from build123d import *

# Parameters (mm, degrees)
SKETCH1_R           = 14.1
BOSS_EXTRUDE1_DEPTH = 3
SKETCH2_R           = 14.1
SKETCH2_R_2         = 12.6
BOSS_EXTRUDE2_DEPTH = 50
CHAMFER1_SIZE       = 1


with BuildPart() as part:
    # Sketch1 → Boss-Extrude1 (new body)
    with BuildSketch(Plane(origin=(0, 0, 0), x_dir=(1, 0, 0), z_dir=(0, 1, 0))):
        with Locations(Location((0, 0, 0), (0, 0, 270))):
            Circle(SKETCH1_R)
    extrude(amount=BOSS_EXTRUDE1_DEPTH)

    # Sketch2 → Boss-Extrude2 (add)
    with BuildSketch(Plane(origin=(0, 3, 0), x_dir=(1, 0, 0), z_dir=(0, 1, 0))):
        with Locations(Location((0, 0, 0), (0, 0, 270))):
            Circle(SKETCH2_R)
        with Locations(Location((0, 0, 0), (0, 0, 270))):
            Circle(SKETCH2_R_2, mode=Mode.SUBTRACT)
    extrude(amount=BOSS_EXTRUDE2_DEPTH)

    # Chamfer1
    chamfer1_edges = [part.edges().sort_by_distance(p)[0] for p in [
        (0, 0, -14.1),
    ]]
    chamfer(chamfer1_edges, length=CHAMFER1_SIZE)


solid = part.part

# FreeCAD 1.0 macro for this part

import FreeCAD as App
import Part
import Sketcher


def edges_at(feature, points):
    """Names of the edges that pass closest to the given points."""
    edges = feature.Shape.Edges
    near = lambda p: min(range(len(edges)), key=lambda i: edges[i].distToShape(Part.Vertex(*p))[0])
    return sorted({f"Edge{near(p) + 1}" for p in points})

doc = App.newDocument("Part")
body = doc.addObject("PartDesign::Body", "Body")

# Sketch on XZ plane
sketch1 = doc.addObject("Sketcher::SketchObject", "Sketch")
body.addObject(sketch1)
sketch1.AttachmentSupport = (doc.XZ_Plane, [""])
sketch1.MapMode = "FlatFace"
sketch1.addGeometry(Part.Circle(App.Vector(0, 0, 0), App.Vector(0, 0, 1), 14), False)
sketch1.addConstraint([
    Sketcher.Constraint("Coincident", 0, 3, -1, 1),
    Sketcher.Constraint("Diameter", 0, 28.2),
])
pad1 = doc.addObject("PartDesign::Pad", "Pad")
body.addObject(pad1)
pad1.Profile = sketch1
pad1.Length = 3
pad1.Reversed = True

# Sketch on XZ plane
sketch2 = doc.addObject("Sketcher::SketchObject", "Sketch001")
body.addObject(sketch2)
sketch2.AttachmentSupport = (doc.XZ_Plane, [""])
sketch2.MapMode = "FlatFace"
sketch2.AttachmentOffset = App.Placement(App.Vector(0, 0, -3), App.Rotation())
sketch2.addGeometry([
    Part.Circle(App.Vector(0, 0, 0), App.Vector(0, 0, 1), 14),
    Part.Circle(App.Vector(0, 0, 0), App.Vector(0, 0, 1), 13),
], False)
sketch2.addConstraint([
    Sketcher.Constraint("Coincident", 0, 3, -1, 1),
    Sketcher.Constraint("Coincident", 1, 3, -1, 1),
    Sketcher.Constraint("Diameter", 0, 28.2),
    Sketcher.Constraint("Diameter", 1, 25.2),
])
pad2 = doc.addObject("PartDesign::Pad", "Pad001")
body.addObject(pad2)
pad2.Profile = sketch2
pad2.Length = 50
pad2.Reversed = True
doc.recompute()

chamfer = doc.addObject("PartDesign::Chamfer", "Chamfer")
body.addObject(chamfer)
chamfer.Base = (pad2, edges_at(pad2, [(0, 0, -14.1)]))
chamfer.Size = 1

doc.recompute()
